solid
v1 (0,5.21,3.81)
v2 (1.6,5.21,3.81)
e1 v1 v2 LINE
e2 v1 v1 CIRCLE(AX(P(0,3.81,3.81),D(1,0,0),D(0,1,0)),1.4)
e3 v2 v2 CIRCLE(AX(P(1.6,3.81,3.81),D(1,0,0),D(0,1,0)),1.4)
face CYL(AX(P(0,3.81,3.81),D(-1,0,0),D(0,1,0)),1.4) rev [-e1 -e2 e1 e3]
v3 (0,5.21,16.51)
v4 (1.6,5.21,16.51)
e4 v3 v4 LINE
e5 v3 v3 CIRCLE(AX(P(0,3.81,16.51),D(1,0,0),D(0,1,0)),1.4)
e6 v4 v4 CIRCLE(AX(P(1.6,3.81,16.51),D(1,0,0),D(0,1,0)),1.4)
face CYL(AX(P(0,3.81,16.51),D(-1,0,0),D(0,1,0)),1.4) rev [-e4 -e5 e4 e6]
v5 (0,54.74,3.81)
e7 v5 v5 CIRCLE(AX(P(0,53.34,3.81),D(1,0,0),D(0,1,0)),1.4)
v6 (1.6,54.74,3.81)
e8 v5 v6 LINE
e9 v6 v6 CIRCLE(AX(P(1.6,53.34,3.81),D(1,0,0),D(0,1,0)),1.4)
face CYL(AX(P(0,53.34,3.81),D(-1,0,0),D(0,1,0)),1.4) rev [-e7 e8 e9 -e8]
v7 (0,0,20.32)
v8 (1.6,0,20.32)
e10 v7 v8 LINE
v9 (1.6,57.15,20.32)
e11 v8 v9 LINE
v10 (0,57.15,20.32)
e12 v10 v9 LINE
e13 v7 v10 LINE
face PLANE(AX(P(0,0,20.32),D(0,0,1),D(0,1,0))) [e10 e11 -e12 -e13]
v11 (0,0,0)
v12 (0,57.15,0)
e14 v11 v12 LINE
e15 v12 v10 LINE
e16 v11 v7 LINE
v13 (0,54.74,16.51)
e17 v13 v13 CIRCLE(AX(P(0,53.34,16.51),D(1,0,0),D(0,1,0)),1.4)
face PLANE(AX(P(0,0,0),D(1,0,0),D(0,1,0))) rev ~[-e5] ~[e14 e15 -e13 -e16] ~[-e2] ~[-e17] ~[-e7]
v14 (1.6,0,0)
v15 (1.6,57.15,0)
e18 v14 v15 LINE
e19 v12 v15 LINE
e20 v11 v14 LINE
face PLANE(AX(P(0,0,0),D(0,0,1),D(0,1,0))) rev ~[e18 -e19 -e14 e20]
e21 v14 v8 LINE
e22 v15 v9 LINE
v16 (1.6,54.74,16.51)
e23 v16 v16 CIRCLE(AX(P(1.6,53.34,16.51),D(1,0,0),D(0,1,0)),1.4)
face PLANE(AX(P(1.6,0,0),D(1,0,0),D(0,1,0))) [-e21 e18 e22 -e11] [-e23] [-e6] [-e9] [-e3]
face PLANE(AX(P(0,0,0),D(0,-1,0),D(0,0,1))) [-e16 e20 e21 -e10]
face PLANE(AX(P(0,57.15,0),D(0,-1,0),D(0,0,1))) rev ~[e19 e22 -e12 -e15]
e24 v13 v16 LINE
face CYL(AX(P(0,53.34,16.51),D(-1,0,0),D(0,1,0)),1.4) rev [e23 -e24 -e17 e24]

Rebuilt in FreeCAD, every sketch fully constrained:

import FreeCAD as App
import Part
import Sketcher
Q = App.Units.Quantity


def add_polygon(sketch, points):
    """Adds a closed chain of lines whose ends are joined by coincident constraints."""
    first, n = sketch.GeometryCount, len(points)
    for a, b in zip(points, points[1:] + points[:1]):
        sketch.addGeometry(Part.LineSegment(App.Vector(*a, 0), App.Vector(*b, 0)), False)
    for i in range(n):
        sketch.addConstraint(Sketcher.Constraint("Coincident", first + i, 2, first + (i + 1) % n, 1))

doc = App.newDocument("Part")
body = doc.addObject("PartDesign::Body", "Body")

# Sketch on YZ plane
sketch1 = body.newObject("Sketcher::SketchObject", "Sketch")
sketch1.AttachmentSupport = (doc.getObject("YZ_Plane"), [""])
sketch1.MapMode = "FlatFace"
add_polygon(sketch1, [(0, 20.3), (0, 0), (57.1, 0), (57.1, 20.3)])  # lines 0-3
sketch1.addGeometry(Part.Circle(App.Vector(3.8, 3.8, 0), App.Vector(0, 0, 1), 1.4), False)  # 4
sketch1.addGeometry(Part.Circle(App.Vector(53.3, 3.8, 0), App.Vector(0, 0, 1), 1.4), False)  # 5
sketch1.addGeometry(Part.Circle(App.Vector(3.8, 16.5, 0), App.Vector(0, 0, 1), 1.4), False)  # 6
sketch1.addGeometry(Part.Circle(App.Vector(53.3, 16.5, 0), App.Vector(0, 0, 1), 1.4), False)  # 7
sketch1.addConstraint([
    Sketcher.Constraint("Vertical", 0),
    Sketcher.Constraint("Horizontal", 1),
    Sketcher.Constraint("Vertical", 2),
    Sketcher.Constraint("Horizontal", 3),
    Sketcher.Constraint("Coincident", 0, 2, -1, 1),
    Sketcher.Constraint("Equal", 4, 5),
    Sketcher.Constraint("Equal", 5, 6),
    Sketcher.Constraint("Equal", 6, 7),
    Sketcher.Constraint("Horizontal", 4, 3, 5, 3),
    Sketcher.Constraint("Horizontal", 6, 3, 7, 3),
    Sketcher.Constraint("Vertical", 4, 3, 6, 3),
    Sketcher.Constraint("Vertical", 5, 3, 7, 3),
    Sketcher.Constraint("DistanceY", 0, 2, 0, 1, Q("0.8 in")),
    Sketcher.Constraint("DistanceX", 1, 1, 1, 2, Q("2.25 in")),
    Sketcher.Constraint("DistanceY", 4, 3, 6, 3, Q("0.5 in")),
    Sketcher.Constraint("Diameter", 4, Q("2.8 mm")),
    Sketcher.Constraint("DistanceX", -1, 1, 4, 3, Q("0.15 in")),
    Sketcher.Constraint("DistanceY", -1, 1, 4, 3, Q("0.15 in")),
    Sketcher.Constraint("DistanceX", 4, 3, 5, 3, Q("1.95 in")),
])
pad1 = body.newObject("PartDesign::Pad", "Pad")
pad1.Profile = sketch1
pad1.Length = Q("0.0629921 in")

doc.recompute()
